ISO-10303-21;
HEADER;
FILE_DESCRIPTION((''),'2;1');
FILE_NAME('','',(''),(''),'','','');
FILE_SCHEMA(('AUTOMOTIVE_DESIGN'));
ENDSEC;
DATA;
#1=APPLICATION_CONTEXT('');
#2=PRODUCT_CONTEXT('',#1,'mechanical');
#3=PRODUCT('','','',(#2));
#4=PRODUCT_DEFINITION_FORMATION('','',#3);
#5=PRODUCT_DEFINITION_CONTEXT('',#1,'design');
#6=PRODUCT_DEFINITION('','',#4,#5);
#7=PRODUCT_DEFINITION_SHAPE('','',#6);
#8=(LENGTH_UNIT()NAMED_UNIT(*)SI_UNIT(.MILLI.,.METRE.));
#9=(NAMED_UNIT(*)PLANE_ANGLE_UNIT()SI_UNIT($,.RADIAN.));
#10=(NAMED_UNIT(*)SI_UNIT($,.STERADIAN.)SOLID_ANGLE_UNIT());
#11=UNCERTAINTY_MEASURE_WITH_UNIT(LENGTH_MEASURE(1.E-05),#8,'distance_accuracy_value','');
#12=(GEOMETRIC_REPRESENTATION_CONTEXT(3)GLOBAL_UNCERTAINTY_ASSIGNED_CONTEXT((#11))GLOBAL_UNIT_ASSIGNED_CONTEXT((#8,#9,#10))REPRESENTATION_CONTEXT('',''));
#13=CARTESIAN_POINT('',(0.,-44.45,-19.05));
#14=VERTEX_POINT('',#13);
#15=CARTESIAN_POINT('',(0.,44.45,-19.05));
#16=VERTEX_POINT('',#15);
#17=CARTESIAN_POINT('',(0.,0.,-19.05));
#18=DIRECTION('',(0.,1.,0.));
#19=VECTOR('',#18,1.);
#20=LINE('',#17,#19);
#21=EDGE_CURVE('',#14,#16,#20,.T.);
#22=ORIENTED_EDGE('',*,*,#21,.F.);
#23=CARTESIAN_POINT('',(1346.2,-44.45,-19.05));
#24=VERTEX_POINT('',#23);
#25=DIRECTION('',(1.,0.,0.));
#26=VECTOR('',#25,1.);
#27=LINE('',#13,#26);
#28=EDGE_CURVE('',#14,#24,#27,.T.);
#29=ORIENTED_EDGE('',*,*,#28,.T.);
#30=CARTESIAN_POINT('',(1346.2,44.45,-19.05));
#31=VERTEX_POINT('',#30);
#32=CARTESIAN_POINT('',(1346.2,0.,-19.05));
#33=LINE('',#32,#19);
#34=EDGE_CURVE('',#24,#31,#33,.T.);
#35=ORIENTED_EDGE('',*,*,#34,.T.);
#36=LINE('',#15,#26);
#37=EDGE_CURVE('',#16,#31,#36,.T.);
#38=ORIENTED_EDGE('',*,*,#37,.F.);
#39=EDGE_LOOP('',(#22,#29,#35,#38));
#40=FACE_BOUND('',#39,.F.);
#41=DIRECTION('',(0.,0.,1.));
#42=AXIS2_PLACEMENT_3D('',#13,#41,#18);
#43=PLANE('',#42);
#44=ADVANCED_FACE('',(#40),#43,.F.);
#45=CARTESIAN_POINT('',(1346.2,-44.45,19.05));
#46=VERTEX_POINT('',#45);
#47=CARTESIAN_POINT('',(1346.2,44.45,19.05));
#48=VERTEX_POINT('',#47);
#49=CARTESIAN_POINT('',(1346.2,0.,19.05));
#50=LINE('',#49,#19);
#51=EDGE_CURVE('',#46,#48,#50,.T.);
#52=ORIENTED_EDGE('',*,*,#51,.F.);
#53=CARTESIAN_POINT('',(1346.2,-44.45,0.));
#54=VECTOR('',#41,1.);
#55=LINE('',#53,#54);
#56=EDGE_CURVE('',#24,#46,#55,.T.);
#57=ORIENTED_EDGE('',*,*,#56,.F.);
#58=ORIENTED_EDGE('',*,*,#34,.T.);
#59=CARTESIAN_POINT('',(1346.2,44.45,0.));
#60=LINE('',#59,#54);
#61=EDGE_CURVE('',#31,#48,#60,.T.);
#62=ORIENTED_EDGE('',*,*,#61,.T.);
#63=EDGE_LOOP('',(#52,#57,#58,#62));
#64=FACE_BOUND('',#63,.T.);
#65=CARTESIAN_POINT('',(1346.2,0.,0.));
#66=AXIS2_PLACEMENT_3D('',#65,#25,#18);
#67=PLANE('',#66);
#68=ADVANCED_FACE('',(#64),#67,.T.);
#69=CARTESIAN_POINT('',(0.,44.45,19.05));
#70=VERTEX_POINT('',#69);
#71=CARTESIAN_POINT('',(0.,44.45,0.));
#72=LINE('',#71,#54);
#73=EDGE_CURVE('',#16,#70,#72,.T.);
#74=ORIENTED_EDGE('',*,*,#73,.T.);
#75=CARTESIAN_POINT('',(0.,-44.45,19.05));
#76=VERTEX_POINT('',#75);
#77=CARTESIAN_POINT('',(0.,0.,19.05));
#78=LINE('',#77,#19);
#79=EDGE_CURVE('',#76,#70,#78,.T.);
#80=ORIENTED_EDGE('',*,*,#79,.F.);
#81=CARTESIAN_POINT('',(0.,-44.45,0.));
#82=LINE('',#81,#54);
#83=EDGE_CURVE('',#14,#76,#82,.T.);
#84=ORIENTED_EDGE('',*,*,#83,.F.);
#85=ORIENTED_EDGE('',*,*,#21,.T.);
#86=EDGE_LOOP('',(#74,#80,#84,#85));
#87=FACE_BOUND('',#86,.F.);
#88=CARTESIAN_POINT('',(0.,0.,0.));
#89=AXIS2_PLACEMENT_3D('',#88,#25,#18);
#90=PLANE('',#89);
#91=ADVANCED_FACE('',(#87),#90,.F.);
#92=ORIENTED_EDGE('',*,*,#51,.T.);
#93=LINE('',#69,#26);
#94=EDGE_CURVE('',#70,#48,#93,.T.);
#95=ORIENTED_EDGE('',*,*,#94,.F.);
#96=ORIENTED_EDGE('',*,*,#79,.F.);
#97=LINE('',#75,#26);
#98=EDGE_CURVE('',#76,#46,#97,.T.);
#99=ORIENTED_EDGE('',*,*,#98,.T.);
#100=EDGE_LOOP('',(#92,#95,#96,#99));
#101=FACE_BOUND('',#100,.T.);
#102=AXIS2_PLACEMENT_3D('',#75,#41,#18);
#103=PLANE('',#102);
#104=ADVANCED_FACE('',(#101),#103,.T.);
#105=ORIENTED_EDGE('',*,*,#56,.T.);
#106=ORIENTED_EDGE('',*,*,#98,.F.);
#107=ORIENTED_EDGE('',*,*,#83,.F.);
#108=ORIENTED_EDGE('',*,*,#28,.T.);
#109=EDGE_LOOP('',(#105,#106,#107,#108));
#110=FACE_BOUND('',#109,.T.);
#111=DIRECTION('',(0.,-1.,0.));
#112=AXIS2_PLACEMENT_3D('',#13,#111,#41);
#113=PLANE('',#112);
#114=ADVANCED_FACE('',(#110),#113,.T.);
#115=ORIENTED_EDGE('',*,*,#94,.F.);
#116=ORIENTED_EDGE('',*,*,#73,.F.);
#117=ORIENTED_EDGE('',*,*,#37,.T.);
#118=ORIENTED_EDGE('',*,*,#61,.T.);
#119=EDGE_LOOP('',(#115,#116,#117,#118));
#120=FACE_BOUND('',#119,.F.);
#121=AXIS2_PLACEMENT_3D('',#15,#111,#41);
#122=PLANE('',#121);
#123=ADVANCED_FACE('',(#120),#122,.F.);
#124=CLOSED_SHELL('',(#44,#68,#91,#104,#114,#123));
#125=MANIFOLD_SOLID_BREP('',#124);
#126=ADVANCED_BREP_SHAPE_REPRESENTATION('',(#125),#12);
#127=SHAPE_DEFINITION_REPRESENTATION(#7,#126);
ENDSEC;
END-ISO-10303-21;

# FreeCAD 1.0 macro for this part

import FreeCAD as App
import Part
import Sketcher
Q = App.Units.Quantity

doc = App.newDocument("Part")
params = doc.addObject("Spreadsheet::Sheet", "Params")
for row, (alias, value) in enumerate([
    ("sketch1_width", "3.5 in"),
    ("sketch1_height", "1.5 in"),
    ("pad1_length", "53 in"),
], start=1):
    params.set(f"A{row}", alias)
    params.set(f"B{row}", "=" + value)
    params.setAlias(f"B{row}", alias)

body = doc.addObject("PartDesign::Body", "Body")

sketch1 = doc.addObject("Sketcher::SketchObject", "Sketch")
body.addObject(sketch1)
sketch1.AttachmentSupport = (doc.YZ_Plane, [""])
sketch1.MapMode = "FlatFace"
sketch1.addGeometry(Part.LineSegment(App.Vector(-44, 19, 0), App.Vector(-44, -19, 0)), False)
sketch1.addGeometry(Part.LineSegment(App.Vector(-44, -19, 0), App.Vector(44, -19, 0)), False)
sketch1.addGeometry(Part.LineSegment(App.Vector(44, -19, 0), App.Vector(44, 19, 0)), False)
sketch1.addGeometry(Part.LineSegment(App.Vector(44, 19, 0), App.Vector(-44, 19, 0)), False)
sketch1.addConstraint(Sketcher.Constraint("Coincident", 0, 2, 1, 1))
sketch1.addConstraint(Sketcher.Constraint("Coincident", 1, 2, 2, 1))
sketch1.addConstraint(Sketcher.Constraint("Coincident", 2, 2, 3, 1))
sketch1.addConstraint(Sketcher.Constraint("Coincident", 3, 2, 0, 1))
sketch1.addConstraint(Sketcher.Constraint("Vertical", 0))
sketch1.addConstraint(Sketcher.Constraint("Horizontal", 1))
sketch1.addConstraint(Sketcher.Constraint("Vertical", 2))
sketch1.addConstraint(Sketcher.Constraint("Horizontal", 3))
sketch1.addConstraint(Sketcher.Constraint("Symmetric", 0, 2, 2, 2, -1, 1))
sketch1.addConstraint(Sketcher.Constraint("DistanceX", 1, 1, 1, 2, Q("3.5 in")))
sketch1.addConstraint(Sketcher.Constraint("DistanceY", 0, 2, 0, 1, Q("1.5 in")))
sketch1.setExpression("Constraints[9]", "Params.sketch1_width")
sketch1.setExpression("Constraints[10]", "Params.sketch1_height")
pad1 = doc.addObject("PartDesign::Pad", "Pad")
body.addObject(pad1)
pad1.Profile = sketch1
pad1.setExpression("Length", "Params.pad1_length")

doc.recompute()
